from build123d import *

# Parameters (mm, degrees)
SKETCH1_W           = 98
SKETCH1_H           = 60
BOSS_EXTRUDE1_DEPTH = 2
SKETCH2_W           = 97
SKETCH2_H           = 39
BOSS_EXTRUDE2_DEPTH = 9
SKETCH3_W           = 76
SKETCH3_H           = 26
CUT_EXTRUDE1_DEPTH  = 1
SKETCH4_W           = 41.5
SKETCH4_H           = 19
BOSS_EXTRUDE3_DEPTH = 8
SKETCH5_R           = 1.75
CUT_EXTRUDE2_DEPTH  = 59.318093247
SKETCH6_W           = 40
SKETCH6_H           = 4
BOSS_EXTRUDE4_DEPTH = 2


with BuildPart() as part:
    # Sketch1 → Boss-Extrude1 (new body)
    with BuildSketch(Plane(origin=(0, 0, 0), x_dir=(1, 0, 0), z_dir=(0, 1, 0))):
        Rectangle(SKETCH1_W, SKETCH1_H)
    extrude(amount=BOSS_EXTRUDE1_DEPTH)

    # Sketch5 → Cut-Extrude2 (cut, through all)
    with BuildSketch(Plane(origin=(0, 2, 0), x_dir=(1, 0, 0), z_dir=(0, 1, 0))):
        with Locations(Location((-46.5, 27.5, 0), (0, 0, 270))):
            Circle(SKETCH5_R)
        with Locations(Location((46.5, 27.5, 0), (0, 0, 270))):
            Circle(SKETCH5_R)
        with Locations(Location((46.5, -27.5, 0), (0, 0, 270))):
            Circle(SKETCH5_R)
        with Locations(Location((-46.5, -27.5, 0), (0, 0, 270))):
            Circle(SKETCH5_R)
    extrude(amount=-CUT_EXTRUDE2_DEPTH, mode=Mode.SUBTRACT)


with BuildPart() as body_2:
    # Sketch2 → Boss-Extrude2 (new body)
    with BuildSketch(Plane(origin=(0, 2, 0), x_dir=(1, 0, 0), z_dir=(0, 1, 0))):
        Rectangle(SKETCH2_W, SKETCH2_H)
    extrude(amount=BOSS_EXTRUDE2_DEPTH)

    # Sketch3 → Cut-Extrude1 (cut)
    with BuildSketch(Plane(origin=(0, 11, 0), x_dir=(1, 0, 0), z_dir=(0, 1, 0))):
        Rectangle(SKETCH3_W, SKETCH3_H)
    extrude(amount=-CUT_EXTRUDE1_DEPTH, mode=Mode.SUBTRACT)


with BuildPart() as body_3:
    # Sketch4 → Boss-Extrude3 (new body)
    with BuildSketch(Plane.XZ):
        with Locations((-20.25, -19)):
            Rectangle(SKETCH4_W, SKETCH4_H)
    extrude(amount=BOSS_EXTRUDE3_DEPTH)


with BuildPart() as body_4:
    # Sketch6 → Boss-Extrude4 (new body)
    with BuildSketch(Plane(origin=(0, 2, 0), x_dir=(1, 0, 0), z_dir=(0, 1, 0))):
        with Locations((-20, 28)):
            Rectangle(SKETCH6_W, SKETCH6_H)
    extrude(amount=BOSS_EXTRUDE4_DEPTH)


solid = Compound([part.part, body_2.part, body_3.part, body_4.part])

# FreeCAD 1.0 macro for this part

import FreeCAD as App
import Part
import Sketcher

V = App.Vector
Q = App.Units.Quantity

doc = App.newDocument("Part")
body = doc.addObject("PartDesign::Body", "Body")

sketch1 = body.newObject("Sketcher::SketchObject", "Sketch")
sketch1.AttachmentSupport = (doc.getObject("XZ_Plane"), [""])
sketch1.MapMode = "FlatFace"
sketch1.addGeometry([
    Part.LineSegment(V(-49, -30, 0), V(-49, 30, 0)),
    Part.LineSegment(V(-49, 30, 0), V(49, 30, 0)),
    Part.LineSegment(V(49, 30, 0), V(49, -30, 0)),
    Part.LineSegment(V(49, -30, 0), V(-49, -30, 0)),
], False)
sketch1.addConstraint([
    Sketcher.Constraint("Coincident", 0, 2, 1, 1),
    Sketcher.Constraint("Coincident", 1, 2, 2, 1),
    Sketcher.Constraint("Coincident", 2, 2, 3, 1),
    Sketcher.Constraint("Coincident", 3, 2, 0, 1),
    Sketcher.Constraint("Vertical", 0),
    Sketcher.Constraint("Horizontal", 1),
    Sketcher.Constraint("Vertical", 2),
    Sketcher.Constraint("Horizontal", 3),
    Sketcher.Constraint("Symmetric", 0, 2, 2, 2, -1, 1),
    Sketcher.Constraint("DistanceX", 1, 1, 1, 2, Q("98 mm")),
    Sketcher.Constraint("DistanceY", 0, 1, 0, 2, Q("60 mm")),
])
pad1 = body.newObject("PartDesign::Pad", "Pad")
pad1.Profile = sketch1
pad1.Length = 2
pad1.Reversed = True

sketch2 = body.newObject("Sketcher::SketchObject", "Sketch001")
sketch2.AttachmentSupport = (doc.getObject("XZ_Plane"), [""])
sketch2.MapMode = "FlatFace"
sketch2.AttachmentOffset = App.Placement(V(0, 0, -2), App.Rotation())
sketch2.addGeometry([
    Part.Circle(V(-46.5, -27.5, 0), V(0, 0, 1), 1.8),
    Part.Circle(V(46.5, -27.5, 0), V(0, 0, 1), 1.8),
    Part.Circle(V(46.5, 27.5, 0), V(0, 0, 1), 1.8),
    Part.Circle(V(-46.5, 27.5, 0), V(0, 0, 1), 1.8),
], False)
sketch2.addConstraint([
    Sketcher.Constraint("Equal", 0, 1),
    Sketcher.Constraint("Equal", 1, 2),
    Sketcher.Constraint("Equal", 2, 3),
    Sketcher.Constraint("Symmetric", 0, 3, 2, 3, -1, 1),
    Sketcher.Constraint("Symmetric", 1, 3, 3, 3, -1, 1),
    Sketcher.Constraint("Symmetric", 0, 3, 1, 3, -2),
    Sketcher.Constraint("Diameter", 0, Q("3.5 mm")),
    Sketcher.Constraint("DistanceX", 0, 3, 1, 3, Q("93 mm")),
    Sketcher.Constraint("DistanceY", 1, 3, 2, 3, Q("55 mm")),
])
pocket1 = body.newObject("PartDesign::Pocket", "Pocket")
pocket1.Profile = sketch2
pocket1.Type = "ThroughAll"
pocket1.Reversed = True
body2 = doc.addObject("PartDesign::Body", "Body001")

sketch3 = body2.newObject("Sketcher::SketchObject", "Sketch002")
sketch3.AttachmentSupport = (doc.getObject("XZ_Plane001"), [""])
sketch3.MapMode = "FlatFace"
sketch3.AttachmentOffset = App.Placement(V(0, 0, -2), App.Rotation())
sketch3.addGeometry([
    Part.LineSegment(V(-48, -20, 0), V(-48, 20, 0)),
    Part.LineSegment(V(-48, 20, 0), V(48, 20, 0)),
    Part.LineSegment(V(48, 20, 0), V(48, -20, 0)),
    Part.LineSegment(V(48, -20, 0), V(-48, -20, 0)),
], False)
sketch3.addConstraint([
    Sketcher.Constraint("Coincident", 0, 2, 1, 1),
    Sketcher.Constraint("Coincident", 1, 2, 2, 1),
    Sketcher.Constraint("Coincident", 2, 2, 3, 1),
    Sketcher.Constraint("Coincident", 3, 2, 0, 1),
    Sketcher.Constraint("Vertical", 0),
    Sketcher.Constraint("Horizontal", 1),
    Sketcher.Constraint("Vertical", 2),
    Sketcher.Constraint("Horizontal", 3),
    Sketcher.Constraint("Symmetric", 0, 2, 2, 2, -1, 1),
    Sketcher.Constraint("DistanceX", 1, 1, 1, 2, Q("97 mm")),
    Sketcher.Constraint("DistanceY", 0, 1, 0, 2, Q("39 mm")),
])
pad2 = body2.newObject("PartDesign::Pad", "Pad001")
pad2.Profile = sketch3
pad2.Length = 9
pad2.Reversed = True

sketch4 = body2.newObject("Sketcher::SketchObject", "Sketch003")
sketch4.AttachmentSupport = (doc.getObject("XZ_Plane001"), [""])
sketch4.MapMode = "FlatFace"
sketch4.AttachmentOffset = App.Placement(V(0, 0, -11), App.Rotation())
sketch4.addGeometry([
    Part.LineSegment(V(-38, -13, 0), V(-38, 13, 0)),
    Part.LineSegment(V(-38, 13, 0), V(38, 13, 0)),
    Part.LineSegment(V(38, 13, 0), V(38, -13, 0)),
    Part.LineSegment(V(38, -13, 0), V(-38, -13, 0)),
], False)
sketch4.addConstraint([
    Sketcher.Constraint("Coincident", 0, 2, 1, 1),
    Sketcher.Constraint("Coincident", 1, 2, 2, 1),
    Sketcher.Constraint("Coincident", 2, 2, 3, 1),
    Sketcher.Constraint("Coincident", 3, 2, 0, 1),
    Sketcher.Constraint("Vertical", 0),
    Sketcher.Constraint("Horizontal", 1),
    Sketcher.Constraint("Vertical", 2),
    Sketcher.Constraint("Horizontal", 3),
    Sketcher.Constraint("Symmetric", 0, 2, 2, 2, -1, 1),
    Sketcher.Constraint("DistanceX", 1, 1, 1, 2, Q("76 mm")),
    Sketcher.Constraint("DistanceY", 0, 1, 0, 2, Q("26 mm")),
])
pocket2 = body2.newObject("PartDesign::Pocket", "Pocket001")
pocket2.Profile = sketch4
pocket2.Length = 1
pocket2.Reversed = True
body3 = doc.addObject("PartDesign::Body", "Body002")

sketch5 = body3.newObject("Sketcher::SketchObject", "Sketch004")
sketch5.AttachmentSupport = (doc.getObject("XZ_Plane002"), [""])
sketch5.MapMode = "FlatFace"
sketch5.addGeometry([
    Part.LineSegment(V(-41, -10, 0), V(-41, -28, 0)),
    Part.LineSegment(V(-41, -28, 0), V(0, -28, 0)),
    Part.LineSegment(V(0, -28, 0), V(0, -10, 0)),
    Part.LineSegment(V(0, -10, 0), V(-41, -10, 0)),
], False)
sketch5.addConstraint([
    Sketcher.Constraint("Coincident", 0, 2, 1, 1),
    Sketcher.Constraint("Coincident", 1, 2, 2, 1),
    Sketcher.Constraint("Coincident", 2, 2, 3, 1),
    Sketcher.Constraint("Coincident", 3, 2, 0, 1),
    Sketcher.Constraint("Vertical", 0),
    Sketcher.Constraint("Horizontal", 1),
    Sketcher.Constraint("Vertical", 2),
    Sketcher.Constraint("Horizontal", 3),
    Sketcher.Constraint("DistanceY", 0, 2, 0, 1, Q("19 mm")),
    Sketcher.Constraint("DistanceX", 1, 1, 1, 2, Q("41.5 mm")),
    Sketcher.Constraint("DistanceX", 0, 2, -1, 1, Q("41 mm")),
    Sketcher.Constraint("DistanceY", 0, 2, -1, 1, Q("28.5 mm")),
])
pad3 = body3.newObject("PartDesign::Pad", "Pad002")
pad3.Profile = sketch5
pad3.Length = 8
body4 = doc.addObject("PartDesign::Body", "Body003")

sketch6 = body4.newObject("Sketcher::SketchObject", "Sketch005")
sketch6.AttachmentSupport = (doc.getObject("XZ_Plane003"), [""])
sketch6.MapMode = "FlatFace"
sketch6.AttachmentOffset = App.Placement(V(0, 0, -2), App.Rotation())
sketch6.addGeometry([
    Part.LineSegment(V(-40, -30, 0), V(-40, -26, 0)),
    Part.LineSegment(V(-40, -26, 0), V(0, -26, 0)),
    Part.LineSegment(V(0, -26, 0), V(0, -30, 0)),
    Part.LineSegment(V(0, -30, 0), V(-40, -30, 0)),
], False)
sketch6.addConstraint([
    Sketcher.Constraint("Coincident", 0, 2, 1, 1),
    Sketcher.Constraint("Coincident", 1, 2, 2, 1),
    Sketcher.Constraint("Coincident", 2, 2, 3, 1),
    Sketcher.Constraint("Coincident", 3, 2, 0, 1),
    Sketcher.Constraint("Vertical", 0),
    Sketcher.Constraint("Horizontal", 1),
    Sketcher.Constraint("Vertical", 2),
    Sketcher.Constraint("Horizontal", 3),
    Sketcher.Constraint("PointOnObject", 1, 2, -2),
    Sketcher.Constraint("DistanceX", 1, 1, 1, 2, Q("40 mm")),
    Sketcher.Constraint("DistanceY", 0, 1, 0, 2, Q("4 mm")),
    Sketcher.Constraint("DistanceY", 0, 2, -1, 1, Q("26 mm")),
])
pad4 = body4.newObject("PartDesign::Pad", "Pad003")
pad4.Profile = sketch6
pad4.Length = 2
pad4.Reversed = True

doc.recompute()
